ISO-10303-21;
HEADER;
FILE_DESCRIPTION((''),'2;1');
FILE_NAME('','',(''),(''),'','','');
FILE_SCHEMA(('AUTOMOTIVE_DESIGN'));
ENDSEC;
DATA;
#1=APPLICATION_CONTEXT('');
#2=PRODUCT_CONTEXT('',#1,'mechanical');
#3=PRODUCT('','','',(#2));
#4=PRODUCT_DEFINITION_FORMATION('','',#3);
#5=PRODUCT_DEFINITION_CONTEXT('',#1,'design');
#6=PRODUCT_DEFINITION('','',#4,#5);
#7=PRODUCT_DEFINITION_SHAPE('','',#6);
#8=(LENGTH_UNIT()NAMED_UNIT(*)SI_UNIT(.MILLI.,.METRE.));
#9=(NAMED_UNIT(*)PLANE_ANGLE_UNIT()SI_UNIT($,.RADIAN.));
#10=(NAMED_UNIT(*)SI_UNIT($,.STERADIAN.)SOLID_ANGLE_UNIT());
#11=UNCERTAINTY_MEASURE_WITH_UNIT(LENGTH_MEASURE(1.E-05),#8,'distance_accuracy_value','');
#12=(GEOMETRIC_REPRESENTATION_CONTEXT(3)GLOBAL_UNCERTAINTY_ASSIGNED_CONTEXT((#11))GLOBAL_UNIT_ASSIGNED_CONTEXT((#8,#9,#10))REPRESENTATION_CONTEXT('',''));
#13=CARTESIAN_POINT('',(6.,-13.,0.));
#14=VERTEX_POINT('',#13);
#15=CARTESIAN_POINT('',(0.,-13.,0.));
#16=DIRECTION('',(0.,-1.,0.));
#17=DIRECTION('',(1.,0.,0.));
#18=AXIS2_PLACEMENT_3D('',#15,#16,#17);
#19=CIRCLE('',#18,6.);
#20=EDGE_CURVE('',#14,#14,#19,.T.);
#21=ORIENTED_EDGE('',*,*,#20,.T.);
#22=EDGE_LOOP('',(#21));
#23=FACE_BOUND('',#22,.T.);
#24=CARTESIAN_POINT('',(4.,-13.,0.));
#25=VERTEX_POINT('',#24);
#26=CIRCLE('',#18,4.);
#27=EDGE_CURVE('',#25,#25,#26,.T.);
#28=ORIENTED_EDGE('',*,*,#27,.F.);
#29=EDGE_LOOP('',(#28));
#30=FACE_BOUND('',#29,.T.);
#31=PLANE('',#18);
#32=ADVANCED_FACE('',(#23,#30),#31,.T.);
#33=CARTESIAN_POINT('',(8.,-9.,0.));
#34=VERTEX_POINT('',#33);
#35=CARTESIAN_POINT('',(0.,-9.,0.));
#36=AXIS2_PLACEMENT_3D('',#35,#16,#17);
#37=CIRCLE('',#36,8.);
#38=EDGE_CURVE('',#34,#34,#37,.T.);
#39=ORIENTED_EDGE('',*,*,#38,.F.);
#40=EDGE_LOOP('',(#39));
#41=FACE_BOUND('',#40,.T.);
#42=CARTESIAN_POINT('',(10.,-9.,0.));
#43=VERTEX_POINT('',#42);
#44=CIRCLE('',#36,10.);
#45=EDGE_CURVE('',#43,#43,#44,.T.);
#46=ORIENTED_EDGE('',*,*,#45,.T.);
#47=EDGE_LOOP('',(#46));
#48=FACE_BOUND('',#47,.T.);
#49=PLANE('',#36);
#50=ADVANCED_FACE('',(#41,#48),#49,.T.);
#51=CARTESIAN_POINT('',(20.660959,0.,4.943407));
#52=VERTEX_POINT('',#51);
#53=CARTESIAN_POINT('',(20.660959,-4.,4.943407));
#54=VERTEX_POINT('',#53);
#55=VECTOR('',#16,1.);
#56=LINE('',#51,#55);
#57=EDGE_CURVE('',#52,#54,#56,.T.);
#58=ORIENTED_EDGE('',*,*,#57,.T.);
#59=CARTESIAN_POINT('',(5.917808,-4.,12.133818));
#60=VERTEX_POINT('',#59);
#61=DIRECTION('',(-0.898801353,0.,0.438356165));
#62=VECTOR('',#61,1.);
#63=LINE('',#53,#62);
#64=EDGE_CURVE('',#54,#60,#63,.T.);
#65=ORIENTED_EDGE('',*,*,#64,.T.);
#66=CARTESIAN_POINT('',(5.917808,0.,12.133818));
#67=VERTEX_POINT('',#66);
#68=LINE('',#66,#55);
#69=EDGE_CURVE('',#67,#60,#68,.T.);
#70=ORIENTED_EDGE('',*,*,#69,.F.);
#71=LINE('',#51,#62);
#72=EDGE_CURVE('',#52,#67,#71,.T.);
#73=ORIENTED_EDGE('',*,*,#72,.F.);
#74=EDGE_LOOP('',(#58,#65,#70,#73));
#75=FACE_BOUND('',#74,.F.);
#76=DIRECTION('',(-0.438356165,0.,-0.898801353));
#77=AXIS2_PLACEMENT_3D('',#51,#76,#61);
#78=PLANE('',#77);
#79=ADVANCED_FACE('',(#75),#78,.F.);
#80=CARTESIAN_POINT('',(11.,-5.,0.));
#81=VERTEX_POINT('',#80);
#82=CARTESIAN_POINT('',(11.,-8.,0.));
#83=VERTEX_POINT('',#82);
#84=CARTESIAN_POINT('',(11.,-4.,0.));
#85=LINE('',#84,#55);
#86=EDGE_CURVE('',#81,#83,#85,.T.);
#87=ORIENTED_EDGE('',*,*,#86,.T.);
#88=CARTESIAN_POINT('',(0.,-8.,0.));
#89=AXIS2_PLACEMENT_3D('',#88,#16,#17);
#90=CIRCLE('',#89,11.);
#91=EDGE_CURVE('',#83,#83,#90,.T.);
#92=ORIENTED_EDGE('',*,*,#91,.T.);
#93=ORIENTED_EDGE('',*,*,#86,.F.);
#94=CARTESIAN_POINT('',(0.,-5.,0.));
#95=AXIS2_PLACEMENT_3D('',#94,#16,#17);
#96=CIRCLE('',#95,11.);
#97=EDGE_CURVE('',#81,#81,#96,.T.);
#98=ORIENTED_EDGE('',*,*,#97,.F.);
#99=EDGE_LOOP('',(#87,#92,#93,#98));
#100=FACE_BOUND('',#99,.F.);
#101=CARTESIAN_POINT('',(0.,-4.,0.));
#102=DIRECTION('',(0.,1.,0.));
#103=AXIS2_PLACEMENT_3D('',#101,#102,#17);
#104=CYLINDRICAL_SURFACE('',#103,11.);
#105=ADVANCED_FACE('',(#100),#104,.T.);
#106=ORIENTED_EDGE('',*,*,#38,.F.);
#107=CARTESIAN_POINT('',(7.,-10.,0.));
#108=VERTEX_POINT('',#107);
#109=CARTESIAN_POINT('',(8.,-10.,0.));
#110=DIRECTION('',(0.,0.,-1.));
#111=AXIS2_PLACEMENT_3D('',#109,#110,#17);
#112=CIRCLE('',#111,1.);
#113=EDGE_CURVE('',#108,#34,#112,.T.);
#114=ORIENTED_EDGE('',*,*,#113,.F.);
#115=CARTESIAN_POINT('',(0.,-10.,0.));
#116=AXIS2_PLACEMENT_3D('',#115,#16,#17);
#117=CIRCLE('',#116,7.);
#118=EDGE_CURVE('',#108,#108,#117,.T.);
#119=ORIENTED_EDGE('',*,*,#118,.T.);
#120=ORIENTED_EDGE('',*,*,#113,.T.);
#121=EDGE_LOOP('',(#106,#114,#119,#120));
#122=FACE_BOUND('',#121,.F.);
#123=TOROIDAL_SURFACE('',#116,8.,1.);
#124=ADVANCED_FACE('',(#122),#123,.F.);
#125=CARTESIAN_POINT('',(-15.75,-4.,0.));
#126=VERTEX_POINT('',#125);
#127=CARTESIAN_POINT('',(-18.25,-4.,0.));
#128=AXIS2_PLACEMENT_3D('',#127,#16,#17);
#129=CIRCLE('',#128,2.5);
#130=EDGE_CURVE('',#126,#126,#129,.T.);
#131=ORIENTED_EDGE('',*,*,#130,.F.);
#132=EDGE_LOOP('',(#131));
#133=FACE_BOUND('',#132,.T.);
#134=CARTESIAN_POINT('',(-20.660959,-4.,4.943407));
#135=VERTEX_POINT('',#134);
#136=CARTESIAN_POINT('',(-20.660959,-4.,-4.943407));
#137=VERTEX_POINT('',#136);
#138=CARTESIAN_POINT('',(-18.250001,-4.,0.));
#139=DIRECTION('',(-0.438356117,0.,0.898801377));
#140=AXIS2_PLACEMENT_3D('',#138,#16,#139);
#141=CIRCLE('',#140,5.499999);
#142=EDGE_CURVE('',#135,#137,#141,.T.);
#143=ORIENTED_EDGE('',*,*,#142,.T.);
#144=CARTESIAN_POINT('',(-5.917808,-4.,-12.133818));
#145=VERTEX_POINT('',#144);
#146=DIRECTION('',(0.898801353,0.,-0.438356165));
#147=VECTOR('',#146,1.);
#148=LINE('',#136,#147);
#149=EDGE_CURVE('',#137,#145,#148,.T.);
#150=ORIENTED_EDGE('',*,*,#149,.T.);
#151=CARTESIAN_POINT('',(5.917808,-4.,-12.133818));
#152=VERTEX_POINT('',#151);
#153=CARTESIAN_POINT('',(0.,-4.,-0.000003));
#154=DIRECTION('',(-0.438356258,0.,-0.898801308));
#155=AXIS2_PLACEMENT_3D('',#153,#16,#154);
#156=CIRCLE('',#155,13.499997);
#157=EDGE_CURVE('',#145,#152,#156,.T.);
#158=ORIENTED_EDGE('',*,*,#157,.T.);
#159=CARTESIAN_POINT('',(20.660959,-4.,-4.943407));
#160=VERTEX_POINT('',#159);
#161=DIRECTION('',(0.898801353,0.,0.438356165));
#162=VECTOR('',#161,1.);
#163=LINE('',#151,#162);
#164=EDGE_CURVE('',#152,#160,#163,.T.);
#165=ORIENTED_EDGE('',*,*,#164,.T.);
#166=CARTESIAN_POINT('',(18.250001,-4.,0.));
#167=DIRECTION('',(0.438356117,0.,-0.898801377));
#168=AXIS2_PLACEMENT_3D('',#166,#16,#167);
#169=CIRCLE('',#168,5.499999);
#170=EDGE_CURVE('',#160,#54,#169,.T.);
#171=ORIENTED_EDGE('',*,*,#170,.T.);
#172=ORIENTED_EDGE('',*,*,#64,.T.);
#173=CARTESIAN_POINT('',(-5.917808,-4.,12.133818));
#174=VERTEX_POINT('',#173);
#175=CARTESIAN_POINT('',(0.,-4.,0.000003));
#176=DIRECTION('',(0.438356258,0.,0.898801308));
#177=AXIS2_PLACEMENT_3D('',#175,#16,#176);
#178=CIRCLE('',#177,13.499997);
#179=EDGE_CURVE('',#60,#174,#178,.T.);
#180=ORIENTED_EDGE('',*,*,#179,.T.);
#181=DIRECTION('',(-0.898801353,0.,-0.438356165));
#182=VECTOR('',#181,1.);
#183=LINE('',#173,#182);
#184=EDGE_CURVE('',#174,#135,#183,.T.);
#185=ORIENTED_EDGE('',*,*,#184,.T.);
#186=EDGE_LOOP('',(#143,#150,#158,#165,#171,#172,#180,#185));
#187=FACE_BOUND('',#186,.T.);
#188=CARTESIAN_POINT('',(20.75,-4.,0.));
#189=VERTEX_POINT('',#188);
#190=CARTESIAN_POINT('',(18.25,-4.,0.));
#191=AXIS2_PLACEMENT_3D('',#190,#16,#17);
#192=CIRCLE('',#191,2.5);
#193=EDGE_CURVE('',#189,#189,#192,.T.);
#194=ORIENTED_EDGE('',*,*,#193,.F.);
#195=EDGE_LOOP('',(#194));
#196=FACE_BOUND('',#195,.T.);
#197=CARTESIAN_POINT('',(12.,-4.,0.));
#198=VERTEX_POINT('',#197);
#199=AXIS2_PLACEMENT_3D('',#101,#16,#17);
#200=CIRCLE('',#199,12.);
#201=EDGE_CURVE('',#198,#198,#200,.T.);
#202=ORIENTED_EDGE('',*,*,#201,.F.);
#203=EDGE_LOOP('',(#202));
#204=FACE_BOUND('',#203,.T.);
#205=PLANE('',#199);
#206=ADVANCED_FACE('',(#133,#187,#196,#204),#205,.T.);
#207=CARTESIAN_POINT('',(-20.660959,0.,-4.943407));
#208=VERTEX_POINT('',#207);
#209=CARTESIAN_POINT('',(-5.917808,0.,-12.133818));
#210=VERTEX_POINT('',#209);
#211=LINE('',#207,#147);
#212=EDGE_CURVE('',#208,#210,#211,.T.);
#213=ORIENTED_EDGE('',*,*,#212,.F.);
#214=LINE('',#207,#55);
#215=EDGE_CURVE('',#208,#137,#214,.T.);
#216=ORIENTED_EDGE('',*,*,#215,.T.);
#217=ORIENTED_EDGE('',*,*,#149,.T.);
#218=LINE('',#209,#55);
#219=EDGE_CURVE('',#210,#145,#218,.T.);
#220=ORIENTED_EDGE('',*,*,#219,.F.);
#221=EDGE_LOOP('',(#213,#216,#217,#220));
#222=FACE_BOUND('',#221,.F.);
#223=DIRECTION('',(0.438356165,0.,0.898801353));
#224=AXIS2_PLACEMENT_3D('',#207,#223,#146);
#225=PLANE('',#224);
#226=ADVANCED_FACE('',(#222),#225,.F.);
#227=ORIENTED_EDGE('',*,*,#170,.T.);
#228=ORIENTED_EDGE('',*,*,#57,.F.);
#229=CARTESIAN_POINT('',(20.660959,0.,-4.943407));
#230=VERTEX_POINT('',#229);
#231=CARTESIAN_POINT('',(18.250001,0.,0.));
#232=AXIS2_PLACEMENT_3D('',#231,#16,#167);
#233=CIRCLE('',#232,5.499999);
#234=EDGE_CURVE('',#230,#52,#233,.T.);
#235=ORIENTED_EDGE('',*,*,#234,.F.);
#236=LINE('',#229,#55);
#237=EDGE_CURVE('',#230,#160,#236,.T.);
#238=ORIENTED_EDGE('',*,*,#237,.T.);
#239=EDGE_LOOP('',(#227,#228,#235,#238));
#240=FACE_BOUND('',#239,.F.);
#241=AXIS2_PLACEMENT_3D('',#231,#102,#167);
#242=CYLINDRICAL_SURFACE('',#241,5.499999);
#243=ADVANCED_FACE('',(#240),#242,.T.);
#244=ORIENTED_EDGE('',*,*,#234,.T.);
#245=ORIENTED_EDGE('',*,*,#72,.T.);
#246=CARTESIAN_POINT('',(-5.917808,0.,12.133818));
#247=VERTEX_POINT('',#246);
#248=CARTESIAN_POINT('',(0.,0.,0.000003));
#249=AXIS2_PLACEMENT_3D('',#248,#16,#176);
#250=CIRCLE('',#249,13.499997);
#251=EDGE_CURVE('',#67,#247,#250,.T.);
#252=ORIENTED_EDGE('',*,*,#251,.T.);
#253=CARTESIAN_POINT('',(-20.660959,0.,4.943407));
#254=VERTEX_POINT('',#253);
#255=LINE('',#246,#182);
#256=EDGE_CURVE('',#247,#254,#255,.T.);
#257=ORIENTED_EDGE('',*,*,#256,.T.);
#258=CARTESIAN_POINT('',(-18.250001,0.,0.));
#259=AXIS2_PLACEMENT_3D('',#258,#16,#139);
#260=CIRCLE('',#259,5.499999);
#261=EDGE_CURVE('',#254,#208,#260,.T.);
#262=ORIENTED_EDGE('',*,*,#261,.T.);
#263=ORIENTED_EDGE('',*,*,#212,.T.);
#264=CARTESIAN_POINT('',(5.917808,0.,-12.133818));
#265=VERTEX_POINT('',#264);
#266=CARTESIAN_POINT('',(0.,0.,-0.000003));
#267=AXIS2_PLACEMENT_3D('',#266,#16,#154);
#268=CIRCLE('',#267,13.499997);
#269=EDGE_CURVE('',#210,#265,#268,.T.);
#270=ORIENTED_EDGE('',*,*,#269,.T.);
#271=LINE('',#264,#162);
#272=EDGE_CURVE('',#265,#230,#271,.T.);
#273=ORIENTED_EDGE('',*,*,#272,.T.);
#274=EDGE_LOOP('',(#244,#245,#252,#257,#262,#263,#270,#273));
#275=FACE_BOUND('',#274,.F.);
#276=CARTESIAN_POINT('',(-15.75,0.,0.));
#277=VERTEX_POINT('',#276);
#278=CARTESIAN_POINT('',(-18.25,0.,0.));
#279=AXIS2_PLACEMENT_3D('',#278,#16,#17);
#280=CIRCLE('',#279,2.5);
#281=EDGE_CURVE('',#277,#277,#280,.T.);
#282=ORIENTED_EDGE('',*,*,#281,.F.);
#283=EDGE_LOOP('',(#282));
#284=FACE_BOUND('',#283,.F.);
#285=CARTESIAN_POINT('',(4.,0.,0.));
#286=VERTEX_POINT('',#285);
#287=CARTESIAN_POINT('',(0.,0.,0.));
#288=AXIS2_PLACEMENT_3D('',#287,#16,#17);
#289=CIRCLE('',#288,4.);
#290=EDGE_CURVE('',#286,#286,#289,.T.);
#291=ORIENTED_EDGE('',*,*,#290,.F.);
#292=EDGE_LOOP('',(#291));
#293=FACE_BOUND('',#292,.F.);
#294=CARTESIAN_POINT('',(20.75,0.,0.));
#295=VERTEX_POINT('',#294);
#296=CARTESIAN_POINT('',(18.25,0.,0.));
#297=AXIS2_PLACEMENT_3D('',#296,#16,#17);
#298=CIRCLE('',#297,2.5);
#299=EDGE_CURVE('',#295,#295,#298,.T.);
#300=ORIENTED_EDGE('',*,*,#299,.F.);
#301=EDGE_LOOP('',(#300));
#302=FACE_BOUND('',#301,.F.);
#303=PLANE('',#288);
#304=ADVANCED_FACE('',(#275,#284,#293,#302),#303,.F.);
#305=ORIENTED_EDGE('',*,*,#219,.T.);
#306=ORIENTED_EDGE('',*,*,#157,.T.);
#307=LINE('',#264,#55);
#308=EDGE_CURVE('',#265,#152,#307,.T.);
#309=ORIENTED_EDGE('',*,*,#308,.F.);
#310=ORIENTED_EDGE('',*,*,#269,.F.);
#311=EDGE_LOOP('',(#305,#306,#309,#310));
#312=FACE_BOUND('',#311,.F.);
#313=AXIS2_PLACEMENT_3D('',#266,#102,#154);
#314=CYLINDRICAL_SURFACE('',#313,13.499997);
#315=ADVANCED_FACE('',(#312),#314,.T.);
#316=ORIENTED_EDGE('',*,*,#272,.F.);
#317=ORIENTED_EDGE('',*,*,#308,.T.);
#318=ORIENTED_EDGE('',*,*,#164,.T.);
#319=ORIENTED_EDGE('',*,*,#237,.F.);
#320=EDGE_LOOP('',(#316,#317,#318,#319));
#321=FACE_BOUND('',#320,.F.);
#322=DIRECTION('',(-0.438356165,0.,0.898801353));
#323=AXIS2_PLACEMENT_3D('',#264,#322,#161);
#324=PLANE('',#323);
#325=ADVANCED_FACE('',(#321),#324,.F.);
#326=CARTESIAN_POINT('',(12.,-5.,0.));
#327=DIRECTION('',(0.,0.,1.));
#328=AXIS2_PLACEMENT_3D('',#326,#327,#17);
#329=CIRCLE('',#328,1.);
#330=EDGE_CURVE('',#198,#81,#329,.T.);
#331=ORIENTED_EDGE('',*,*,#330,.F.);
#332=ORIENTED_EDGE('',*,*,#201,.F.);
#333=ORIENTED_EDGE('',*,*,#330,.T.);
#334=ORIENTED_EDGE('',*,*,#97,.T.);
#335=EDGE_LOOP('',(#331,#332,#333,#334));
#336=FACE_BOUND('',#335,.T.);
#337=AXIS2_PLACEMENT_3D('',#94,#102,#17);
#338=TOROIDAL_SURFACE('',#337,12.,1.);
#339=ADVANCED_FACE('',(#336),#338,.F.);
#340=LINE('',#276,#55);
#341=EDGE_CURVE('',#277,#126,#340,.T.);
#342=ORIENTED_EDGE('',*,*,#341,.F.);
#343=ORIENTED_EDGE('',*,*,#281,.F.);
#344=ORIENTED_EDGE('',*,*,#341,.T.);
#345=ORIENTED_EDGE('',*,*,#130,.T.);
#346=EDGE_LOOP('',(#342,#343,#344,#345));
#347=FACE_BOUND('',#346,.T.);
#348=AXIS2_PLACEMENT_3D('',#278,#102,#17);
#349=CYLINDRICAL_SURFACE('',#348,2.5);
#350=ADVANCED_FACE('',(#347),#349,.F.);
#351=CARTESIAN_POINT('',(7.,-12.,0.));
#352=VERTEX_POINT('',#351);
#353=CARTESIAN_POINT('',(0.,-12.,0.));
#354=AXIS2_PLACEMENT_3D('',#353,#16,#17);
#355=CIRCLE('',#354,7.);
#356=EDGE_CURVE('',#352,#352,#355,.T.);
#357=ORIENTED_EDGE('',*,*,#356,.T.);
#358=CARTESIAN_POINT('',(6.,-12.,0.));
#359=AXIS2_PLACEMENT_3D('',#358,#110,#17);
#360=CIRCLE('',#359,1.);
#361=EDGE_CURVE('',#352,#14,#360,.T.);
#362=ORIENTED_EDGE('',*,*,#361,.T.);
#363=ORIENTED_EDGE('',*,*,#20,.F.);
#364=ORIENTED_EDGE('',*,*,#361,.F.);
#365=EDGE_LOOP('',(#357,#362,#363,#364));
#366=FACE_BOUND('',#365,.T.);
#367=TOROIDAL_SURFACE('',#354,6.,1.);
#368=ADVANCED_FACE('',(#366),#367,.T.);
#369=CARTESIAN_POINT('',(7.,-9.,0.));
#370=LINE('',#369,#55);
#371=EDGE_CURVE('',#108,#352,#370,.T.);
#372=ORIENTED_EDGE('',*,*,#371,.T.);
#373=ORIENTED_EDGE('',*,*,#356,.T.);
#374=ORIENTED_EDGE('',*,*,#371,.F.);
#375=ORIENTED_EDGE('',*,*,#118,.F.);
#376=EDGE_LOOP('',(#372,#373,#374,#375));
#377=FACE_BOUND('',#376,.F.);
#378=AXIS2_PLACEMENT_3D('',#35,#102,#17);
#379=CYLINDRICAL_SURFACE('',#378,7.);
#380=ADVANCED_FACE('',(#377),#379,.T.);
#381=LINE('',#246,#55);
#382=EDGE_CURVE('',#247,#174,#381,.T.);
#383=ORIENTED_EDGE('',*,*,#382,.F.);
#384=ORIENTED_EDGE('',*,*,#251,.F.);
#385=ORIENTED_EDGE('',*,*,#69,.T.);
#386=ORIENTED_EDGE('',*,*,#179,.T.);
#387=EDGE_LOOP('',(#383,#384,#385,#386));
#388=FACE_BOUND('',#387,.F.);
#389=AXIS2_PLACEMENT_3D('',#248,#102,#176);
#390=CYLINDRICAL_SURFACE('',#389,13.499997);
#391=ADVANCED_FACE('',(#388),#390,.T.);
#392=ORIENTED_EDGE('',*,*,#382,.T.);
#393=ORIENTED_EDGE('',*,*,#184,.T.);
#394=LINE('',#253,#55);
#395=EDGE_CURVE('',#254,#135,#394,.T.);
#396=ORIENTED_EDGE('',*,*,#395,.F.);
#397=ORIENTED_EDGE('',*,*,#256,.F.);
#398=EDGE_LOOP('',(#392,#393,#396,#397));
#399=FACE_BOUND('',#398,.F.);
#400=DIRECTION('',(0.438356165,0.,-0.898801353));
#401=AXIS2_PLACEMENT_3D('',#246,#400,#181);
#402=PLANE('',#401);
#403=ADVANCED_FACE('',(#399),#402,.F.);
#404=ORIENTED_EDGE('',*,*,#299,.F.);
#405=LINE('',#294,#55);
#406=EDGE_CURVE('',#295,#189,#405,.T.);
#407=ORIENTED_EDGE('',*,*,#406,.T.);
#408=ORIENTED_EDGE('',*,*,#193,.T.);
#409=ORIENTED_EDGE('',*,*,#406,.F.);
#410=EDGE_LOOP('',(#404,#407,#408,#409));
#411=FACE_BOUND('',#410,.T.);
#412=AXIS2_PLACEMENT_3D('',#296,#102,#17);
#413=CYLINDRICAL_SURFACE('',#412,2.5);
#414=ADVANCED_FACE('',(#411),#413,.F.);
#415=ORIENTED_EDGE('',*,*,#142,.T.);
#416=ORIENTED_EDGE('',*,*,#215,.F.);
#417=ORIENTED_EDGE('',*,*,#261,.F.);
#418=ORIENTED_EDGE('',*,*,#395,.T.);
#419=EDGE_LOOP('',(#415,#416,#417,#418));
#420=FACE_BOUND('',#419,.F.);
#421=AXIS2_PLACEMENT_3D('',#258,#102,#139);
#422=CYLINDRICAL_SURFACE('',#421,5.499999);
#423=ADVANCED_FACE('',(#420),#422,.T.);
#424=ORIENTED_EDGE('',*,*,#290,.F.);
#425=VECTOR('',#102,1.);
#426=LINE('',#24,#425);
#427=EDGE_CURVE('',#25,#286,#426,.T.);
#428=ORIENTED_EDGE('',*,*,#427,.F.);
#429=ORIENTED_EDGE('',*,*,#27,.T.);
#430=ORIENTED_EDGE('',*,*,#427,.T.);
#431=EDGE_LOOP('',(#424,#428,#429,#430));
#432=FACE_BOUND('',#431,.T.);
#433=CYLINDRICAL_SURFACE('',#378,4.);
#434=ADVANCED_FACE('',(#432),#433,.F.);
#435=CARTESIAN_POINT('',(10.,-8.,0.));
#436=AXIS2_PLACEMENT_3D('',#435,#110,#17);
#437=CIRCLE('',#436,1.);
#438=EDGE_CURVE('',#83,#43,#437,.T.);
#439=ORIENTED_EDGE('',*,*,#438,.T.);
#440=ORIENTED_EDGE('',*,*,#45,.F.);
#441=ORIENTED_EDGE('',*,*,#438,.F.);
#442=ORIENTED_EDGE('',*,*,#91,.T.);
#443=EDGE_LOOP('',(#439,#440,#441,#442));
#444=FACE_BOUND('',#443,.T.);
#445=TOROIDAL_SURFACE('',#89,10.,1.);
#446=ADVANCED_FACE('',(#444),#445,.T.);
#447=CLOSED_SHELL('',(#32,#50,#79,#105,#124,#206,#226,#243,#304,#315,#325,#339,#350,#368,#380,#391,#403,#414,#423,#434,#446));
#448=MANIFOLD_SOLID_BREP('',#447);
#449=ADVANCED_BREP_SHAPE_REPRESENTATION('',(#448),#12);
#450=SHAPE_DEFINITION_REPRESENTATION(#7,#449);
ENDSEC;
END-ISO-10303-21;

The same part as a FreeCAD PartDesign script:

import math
import FreeCAD as App
import Part
import Sketcher
from FreeCAD import Vector


def edges_at(feature, points):
    """Names of the edges that pass closest to the given points."""
    edges = feature.Shape.Edges
    near = lambda p: min(range(len(edges)), key=lambda i: edges[i].distToShape(Part.Vertex(*p))[0])
    return sorted({f"Edge{near(p) + 1}" for p in points})

doc = App.newDocument("Part")
body = doc.addObject("PartDesign::Body", "Body")

# Sketch on XZ plane
sketch1 = body.newObject("Sketcher::SketchObject", "Sketch")
sketch1.AttachmentSupport = (doc.getObject("XZ_Plane"), [""])
sketch1.MapMode = "FlatFace"
sketch1.addGeometry([
    Part.LineSegment(Vector(-20.7, -4.9, 0), Vector(-5.9, -12.1, 0)),  # 0
    Part.ArcOfCircle(Part.Circle(Vector(0, 0, 0), Vector(0, 0, 1), 13.5), math.radians(-116), math.radians(-64)),  # 1
    Part.LineSegment(Vector(5.9, -12.1, 0), Vector(20.7, -4.9, 0)),  # 2
    Part.ArcOfCircle(Part.Circle(Vector(18.3, 0, 0), Vector(0, 0, 1), 5.5), math.radians(-64), math.radians(64)),  # 3
    Part.LineSegment(Vector(20.7, 4.9, 0), Vector(5.9, 12.1, 0)),  # 4
    Part.ArcOfCircle(Part.Circle(Vector(0, 0, 0), Vector(0, 0, 1), 13.5), math.radians(64), math.radians(116)),  # 5
    Part.LineSegment(Vector(-5.9, 12.1, 0), Vector(-20.7, 4.9, 0)),  # 6
    Part.ArcOfCircle(Part.Circle(Vector(-18.3, 0, 0), Vector(0, 0, 1), 5.5), math.radians(116), math.radians(244)),  # 7
    Part.Circle(Vector(-18.2, 0, 0), Vector(0, 0, 1), 2.5),  # 8
    Part.Circle(Vector(18.2, 0, 0), Vector(0, 0, 1), 2.5),  # 9
    Part.Circle(Vector(0, 0, 0), Vector(0, 0, 1), 4),  # 10
], False)
sketch1.addConstraint([
    Sketcher.Constraint("Tangent", 0, 2, 1, 1),
    Sketcher.Constraint("Tangent", 1, 2, 2, 1),
    Sketcher.Constraint("Tangent", 2, 2, 3, 1),
    Sketcher.Constraint("Tangent", 3, 2, 4, 1),
    Sketcher.Constraint("Tangent", 4, 2, 5, 1),
    Sketcher.Constraint("Tangent", 5, 2, 6, 1),
    Sketcher.Constraint("Tangent", 6, 2, 7, 1),
    Sketcher.Constraint("Tangent", 7, 2, 0, 1),
    Sketcher.Constraint("Coincident", 1, 3, -1, 1),
    Sketcher.Constraint("Coincident", 5, 3, -1, 1),
    Sketcher.Constraint("Coincident", 10, 3, -1, 1),
    Sketcher.Constraint("Coincident", 8, 3, 7, 3),
    Sketcher.Constraint("Coincident", 9, 3, 3, 3),
    Sketcher.Constraint("Equal", 1, 5),
    Sketcher.Constraint("Equal", 3, 7),
    Sketcher.Constraint("Equal", 8, 9),
    Sketcher.Constraint("Symmetric", 3, 3, 7, 3, -1, 1),
    Sketcher.Constraint("PointOnObject", 3, 3, -1),
    Sketcher.Constraint("Diameter", 8, 5.0),
    Sketcher.Constraint("Diameter", 10, 8.0),
    Sketcher.Constraint("Radius", 3, 5.499999),
    Sketcher.Constraint("DistanceX", 7, 3, 3, 3, 36.500001),
    Sketcher.Constraint("Radius", 1, 13.499997),
])
pad1 = body.newObject("PartDesign::Pad", "Pad")
pad1.Profile = sketch1
pad1.Length = 4

# Sketch on XZ plane
sketch2 = body.newObject("Sketcher::SketchObject", "Sketch001")
sketch2.AttachmentSupport = (doc.getObject("XZ_Plane"), [""])
sketch2.MapMode = "FlatFace"
sketch2.AttachmentOffset = App.Placement(Vector(0, 0, 4), App.Rotation())
sketch2.addGeometry([
    Part.Circle(Vector(0, 0, 0), Vector(0, 0, 1), 11),
    Part.Circle(Vector(0, 0, 0), Vector(0, 0, 1), 4),
], False)
sketch2.addConstraint([
    Sketcher.Constraint("Coincident", 0, 3, -1, 1),
    Sketcher.Constraint("Coincident", 1, 3, -1, 1),
    Sketcher.Constraint("Diameter", 0, 22.0),
    Sketcher.Constraint("Diameter", 1, 8.0),
])
pad2 = body.newObject("PartDesign::Pad", "Pad001")
pad2.Profile = sketch2
pad2.Length = 5

# Sketch on XZ plane
sketch3 = body.newObject("Sketcher::SketchObject", "Sketch002")
sketch3.AttachmentSupport = (doc.getObject("XZ_Plane"), [""])
sketch3.MapMode = "FlatFace"
sketch3.AttachmentOffset = App.Placement(Vector(0, 0, 9), App.Rotation())
sketch3.addGeometry([
    Part.Circle(Vector(0, 0, 0), Vector(0, 0, 1), 7),
    Part.Circle(Vector(0, 0, 0), Vector(0, 0, 1), 4),
], False)
sketch3.addConstraint([
    Sketcher.Constraint("Coincident", 0, 3, -1, 1),
    Sketcher.Constraint("Coincident", 1, 3, -1, 1),
    Sketcher.Constraint("Diameter", 0, 14.0),
    Sketcher.Constraint("Diameter", 1, 8.0),
])
pad3 = body.newObject("PartDesign::Pad", "Pad002")
pad3.Profile = sketch3
pad3.Length = 4
doc.recompute()

fillet = body.newObject("PartDesign::Fillet", "Fillet")
fillet.Base = (pad3, edges_at(pad3, [
    (-11, -9, 0),
    (-7, -9, 0),
    (-11, -4, 0),
    (-7, -13, 0),
]))
fillet.Radius = 1

doc.recompute()
